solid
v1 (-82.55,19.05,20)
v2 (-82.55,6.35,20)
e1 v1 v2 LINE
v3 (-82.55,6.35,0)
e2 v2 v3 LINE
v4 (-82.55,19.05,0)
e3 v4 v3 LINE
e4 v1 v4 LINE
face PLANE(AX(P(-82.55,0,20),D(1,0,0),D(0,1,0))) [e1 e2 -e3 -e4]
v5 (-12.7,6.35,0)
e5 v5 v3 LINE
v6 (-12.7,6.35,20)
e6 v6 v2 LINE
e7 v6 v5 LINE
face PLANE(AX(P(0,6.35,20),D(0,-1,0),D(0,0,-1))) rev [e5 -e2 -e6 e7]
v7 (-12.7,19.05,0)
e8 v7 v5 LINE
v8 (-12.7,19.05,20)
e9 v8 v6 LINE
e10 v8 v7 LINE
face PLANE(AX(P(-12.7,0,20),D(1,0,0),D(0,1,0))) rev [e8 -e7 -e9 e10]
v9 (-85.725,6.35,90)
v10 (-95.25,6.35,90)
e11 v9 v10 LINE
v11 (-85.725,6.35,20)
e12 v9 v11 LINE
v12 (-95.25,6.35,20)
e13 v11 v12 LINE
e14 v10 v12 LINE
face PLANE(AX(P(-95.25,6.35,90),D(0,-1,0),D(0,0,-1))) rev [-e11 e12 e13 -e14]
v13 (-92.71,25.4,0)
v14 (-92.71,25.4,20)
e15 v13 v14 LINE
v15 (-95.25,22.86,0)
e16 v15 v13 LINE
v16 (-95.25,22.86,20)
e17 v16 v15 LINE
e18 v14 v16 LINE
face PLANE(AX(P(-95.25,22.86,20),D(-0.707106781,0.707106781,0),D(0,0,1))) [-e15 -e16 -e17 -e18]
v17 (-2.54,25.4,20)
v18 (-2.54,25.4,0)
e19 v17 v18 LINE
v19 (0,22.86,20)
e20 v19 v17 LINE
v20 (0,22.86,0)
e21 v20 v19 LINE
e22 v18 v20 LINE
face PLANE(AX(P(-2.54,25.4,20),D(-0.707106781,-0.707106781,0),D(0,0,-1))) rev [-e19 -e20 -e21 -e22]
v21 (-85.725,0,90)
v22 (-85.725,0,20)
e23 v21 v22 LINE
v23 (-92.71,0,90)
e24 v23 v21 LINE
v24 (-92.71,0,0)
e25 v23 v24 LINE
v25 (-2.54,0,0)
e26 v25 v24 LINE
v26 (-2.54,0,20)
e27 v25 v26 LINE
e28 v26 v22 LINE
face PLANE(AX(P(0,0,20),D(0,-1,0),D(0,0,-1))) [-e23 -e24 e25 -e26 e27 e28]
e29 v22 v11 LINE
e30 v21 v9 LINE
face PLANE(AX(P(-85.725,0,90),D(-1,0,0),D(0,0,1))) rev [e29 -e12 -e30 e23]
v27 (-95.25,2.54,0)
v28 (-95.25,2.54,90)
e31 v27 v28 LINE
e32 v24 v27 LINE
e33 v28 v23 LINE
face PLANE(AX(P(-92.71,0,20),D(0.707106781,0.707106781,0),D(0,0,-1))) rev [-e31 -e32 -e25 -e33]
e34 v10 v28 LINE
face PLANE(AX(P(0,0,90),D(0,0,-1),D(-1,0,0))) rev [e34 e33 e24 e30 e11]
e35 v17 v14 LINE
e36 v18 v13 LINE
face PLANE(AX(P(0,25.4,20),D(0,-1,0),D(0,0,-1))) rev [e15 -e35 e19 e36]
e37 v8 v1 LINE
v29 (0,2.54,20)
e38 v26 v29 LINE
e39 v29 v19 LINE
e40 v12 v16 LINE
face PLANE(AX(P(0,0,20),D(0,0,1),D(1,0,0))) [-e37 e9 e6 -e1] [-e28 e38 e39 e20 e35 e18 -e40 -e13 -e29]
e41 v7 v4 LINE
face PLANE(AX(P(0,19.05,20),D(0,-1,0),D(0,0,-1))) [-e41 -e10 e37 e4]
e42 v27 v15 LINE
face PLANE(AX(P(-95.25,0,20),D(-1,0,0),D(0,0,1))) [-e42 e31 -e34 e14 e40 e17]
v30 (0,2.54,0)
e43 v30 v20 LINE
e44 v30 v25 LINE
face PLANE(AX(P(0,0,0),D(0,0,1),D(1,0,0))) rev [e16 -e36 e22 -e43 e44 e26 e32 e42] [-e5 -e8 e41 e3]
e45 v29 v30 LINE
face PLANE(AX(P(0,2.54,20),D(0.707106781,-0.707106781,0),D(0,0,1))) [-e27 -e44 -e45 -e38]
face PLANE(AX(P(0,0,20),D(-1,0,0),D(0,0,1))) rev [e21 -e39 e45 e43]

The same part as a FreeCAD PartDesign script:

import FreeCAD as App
import Part
import Sketcher

V = App.Vector
Q = App.Units.Quantity


def edges_at(feature, points):
    """Names of the edges that pass closest to the given points."""
    edges = feature.Shape.Edges
    near = lambda p: min(range(len(edges)), key=lambda i: edges[i].distToShape(Part.Vertex(*p))[0])
    return sorted({f"Edge{near(p) + 1}" for p in points})


def add_polygon(sketch, points):
    """Adds a closed chain of lines whose ends are joined by coincident constraints."""
    first, n = sketch.GeometryCount, len(points)
    for a, b in zip(points, points[1:] + points[:1]):
        sketch.addGeometry(Part.LineSegment(App.Vector(*a, 0), App.Vector(*b, 0)), False)
    for i in range(n):
        sketch.addConstraint(Sketcher.Constraint("Coincident", first + i, 2, first + (i + 1) % n, 1))

doc = App.newDocument("Part")
body = doc.addObject("PartDesign::Body", "Body")

# Sketch on XY plane
sketch1 = body.newObject("Sketcher::SketchObject", "Sketch")
sketch1.AttachmentSupport = (doc.getObject("XY_Plane"), [""])
sketch1.MapMode = "FlatFace"
add_polygon(sketch1, [(-95, 25), (-95, 0), (0, 0), (0, 25)])  # lines 0-3
add_polygon(sketch1, [(-13, 6), (-83, 6), (-83, 19), (-13, 19)])  # lines 4-7
sketch1.addConstraint(Sketcher.Constraint("Vertical", 0))
sketch1.addConstraint(Sketcher.Constraint("Horizontal", 1))
sketch1.addConstraint(Sketcher.Constraint("Vertical", 2))
sketch1.addConstraint(Sketcher.Constraint("Horizontal", 3))
sketch1.addConstraint(Sketcher.Constraint("Horizontal", 4))
sketch1.addConstraint(Sketcher.Constraint("Vertical", 5))
sketch1.addConstraint(Sketcher.Constraint("Horizontal", 6))
sketch1.addConstraint(Sketcher.Constraint("Vertical", 7))
sketch1.addConstraint(Sketcher.Constraint("Coincident", 1, 2, -1, 1))
sketch1.addConstraint(Sketcher.Constraint("DistanceY", 0, 2, 0, 1, Q("1 in")))
sketch1.addConstraint(Sketcher.Constraint("DistanceY", 5, 1, 5, 2, Q("0.5 in")))
sketch1.addConstraint(Sketcher.Constraint("DistanceX", 1, 1, 1, 2, Q("3.75 in")))
sketch1.addConstraint(Sketcher.Constraint("DistanceX", 4, 2, 4, 1, Q("2.75 in")))
sketch1.addConstraint(Sketcher.Constraint("DistanceX", 6, 2, -1, 1, Q("0.5 in")))
sketch1.addConstraint(Sketcher.Constraint("DistanceY", -1, 1, 4, 2, Q("0.25 in")))
pad1 = body.newObject("PartDesign::Pad", "Pad")
pad1.Profile = sketch1
pad1.Length = 20

# Sketch on XY plane
sketch2 = body.newObject("Sketcher::SketchObject", "Sketch001")
sketch2.AttachmentSupport = (doc.getObject("XY_Plane"), [""])
sketch2.MapMode = "FlatFace"
sketch2.AttachmentOffset = App.Placement(V(0, 0, 20), App.Rotation())
add_polygon(sketch2, [(-95, 6), (-95, 0), (-86, 0), (-86, 6)])  # lines 0-3
sketch2.addConstraint(Sketcher.Constraint("Vertical", 0))
sketch2.addConstraint(Sketcher.Constraint("Horizontal", 1))
sketch2.addConstraint(Sketcher.Constraint("Vertical", 2))
sketch2.addConstraint(Sketcher.Constraint("Horizontal", 3))
sketch2.addConstraint(Sketcher.Constraint("PointOnObject", 0, 2, -1))
sketch2.addConstraint(Sketcher.Constraint("DistanceY", 0, 2, 0, 1, Q("0.25 in")))
sketch2.addConstraint(Sketcher.Constraint("DistanceX", 1, 1, 1, 2, Q("0.375 in")))
sketch2.addConstraint(Sketcher.Constraint("DistanceX", 0, 2, -1, 1, Q("3.75 in")))
pad2 = body.newObject("PartDesign::Pad", "Pad001")
pad2.Profile = sketch2
pad2.Length = 70
doc.recompute()

chamfer = body.newObject("PartDesign::Chamfer", "Chamfer")
chamfer.Base = (pad2, edges_at(pad2, [
    (-95.25, 25.4, 10),
    (0, 25.4, 10),
    (0, 0, 10),
    (-95.25, 0, 45),
]))
chamfer.Size = Q("0.1 in")

doc.recompute()
